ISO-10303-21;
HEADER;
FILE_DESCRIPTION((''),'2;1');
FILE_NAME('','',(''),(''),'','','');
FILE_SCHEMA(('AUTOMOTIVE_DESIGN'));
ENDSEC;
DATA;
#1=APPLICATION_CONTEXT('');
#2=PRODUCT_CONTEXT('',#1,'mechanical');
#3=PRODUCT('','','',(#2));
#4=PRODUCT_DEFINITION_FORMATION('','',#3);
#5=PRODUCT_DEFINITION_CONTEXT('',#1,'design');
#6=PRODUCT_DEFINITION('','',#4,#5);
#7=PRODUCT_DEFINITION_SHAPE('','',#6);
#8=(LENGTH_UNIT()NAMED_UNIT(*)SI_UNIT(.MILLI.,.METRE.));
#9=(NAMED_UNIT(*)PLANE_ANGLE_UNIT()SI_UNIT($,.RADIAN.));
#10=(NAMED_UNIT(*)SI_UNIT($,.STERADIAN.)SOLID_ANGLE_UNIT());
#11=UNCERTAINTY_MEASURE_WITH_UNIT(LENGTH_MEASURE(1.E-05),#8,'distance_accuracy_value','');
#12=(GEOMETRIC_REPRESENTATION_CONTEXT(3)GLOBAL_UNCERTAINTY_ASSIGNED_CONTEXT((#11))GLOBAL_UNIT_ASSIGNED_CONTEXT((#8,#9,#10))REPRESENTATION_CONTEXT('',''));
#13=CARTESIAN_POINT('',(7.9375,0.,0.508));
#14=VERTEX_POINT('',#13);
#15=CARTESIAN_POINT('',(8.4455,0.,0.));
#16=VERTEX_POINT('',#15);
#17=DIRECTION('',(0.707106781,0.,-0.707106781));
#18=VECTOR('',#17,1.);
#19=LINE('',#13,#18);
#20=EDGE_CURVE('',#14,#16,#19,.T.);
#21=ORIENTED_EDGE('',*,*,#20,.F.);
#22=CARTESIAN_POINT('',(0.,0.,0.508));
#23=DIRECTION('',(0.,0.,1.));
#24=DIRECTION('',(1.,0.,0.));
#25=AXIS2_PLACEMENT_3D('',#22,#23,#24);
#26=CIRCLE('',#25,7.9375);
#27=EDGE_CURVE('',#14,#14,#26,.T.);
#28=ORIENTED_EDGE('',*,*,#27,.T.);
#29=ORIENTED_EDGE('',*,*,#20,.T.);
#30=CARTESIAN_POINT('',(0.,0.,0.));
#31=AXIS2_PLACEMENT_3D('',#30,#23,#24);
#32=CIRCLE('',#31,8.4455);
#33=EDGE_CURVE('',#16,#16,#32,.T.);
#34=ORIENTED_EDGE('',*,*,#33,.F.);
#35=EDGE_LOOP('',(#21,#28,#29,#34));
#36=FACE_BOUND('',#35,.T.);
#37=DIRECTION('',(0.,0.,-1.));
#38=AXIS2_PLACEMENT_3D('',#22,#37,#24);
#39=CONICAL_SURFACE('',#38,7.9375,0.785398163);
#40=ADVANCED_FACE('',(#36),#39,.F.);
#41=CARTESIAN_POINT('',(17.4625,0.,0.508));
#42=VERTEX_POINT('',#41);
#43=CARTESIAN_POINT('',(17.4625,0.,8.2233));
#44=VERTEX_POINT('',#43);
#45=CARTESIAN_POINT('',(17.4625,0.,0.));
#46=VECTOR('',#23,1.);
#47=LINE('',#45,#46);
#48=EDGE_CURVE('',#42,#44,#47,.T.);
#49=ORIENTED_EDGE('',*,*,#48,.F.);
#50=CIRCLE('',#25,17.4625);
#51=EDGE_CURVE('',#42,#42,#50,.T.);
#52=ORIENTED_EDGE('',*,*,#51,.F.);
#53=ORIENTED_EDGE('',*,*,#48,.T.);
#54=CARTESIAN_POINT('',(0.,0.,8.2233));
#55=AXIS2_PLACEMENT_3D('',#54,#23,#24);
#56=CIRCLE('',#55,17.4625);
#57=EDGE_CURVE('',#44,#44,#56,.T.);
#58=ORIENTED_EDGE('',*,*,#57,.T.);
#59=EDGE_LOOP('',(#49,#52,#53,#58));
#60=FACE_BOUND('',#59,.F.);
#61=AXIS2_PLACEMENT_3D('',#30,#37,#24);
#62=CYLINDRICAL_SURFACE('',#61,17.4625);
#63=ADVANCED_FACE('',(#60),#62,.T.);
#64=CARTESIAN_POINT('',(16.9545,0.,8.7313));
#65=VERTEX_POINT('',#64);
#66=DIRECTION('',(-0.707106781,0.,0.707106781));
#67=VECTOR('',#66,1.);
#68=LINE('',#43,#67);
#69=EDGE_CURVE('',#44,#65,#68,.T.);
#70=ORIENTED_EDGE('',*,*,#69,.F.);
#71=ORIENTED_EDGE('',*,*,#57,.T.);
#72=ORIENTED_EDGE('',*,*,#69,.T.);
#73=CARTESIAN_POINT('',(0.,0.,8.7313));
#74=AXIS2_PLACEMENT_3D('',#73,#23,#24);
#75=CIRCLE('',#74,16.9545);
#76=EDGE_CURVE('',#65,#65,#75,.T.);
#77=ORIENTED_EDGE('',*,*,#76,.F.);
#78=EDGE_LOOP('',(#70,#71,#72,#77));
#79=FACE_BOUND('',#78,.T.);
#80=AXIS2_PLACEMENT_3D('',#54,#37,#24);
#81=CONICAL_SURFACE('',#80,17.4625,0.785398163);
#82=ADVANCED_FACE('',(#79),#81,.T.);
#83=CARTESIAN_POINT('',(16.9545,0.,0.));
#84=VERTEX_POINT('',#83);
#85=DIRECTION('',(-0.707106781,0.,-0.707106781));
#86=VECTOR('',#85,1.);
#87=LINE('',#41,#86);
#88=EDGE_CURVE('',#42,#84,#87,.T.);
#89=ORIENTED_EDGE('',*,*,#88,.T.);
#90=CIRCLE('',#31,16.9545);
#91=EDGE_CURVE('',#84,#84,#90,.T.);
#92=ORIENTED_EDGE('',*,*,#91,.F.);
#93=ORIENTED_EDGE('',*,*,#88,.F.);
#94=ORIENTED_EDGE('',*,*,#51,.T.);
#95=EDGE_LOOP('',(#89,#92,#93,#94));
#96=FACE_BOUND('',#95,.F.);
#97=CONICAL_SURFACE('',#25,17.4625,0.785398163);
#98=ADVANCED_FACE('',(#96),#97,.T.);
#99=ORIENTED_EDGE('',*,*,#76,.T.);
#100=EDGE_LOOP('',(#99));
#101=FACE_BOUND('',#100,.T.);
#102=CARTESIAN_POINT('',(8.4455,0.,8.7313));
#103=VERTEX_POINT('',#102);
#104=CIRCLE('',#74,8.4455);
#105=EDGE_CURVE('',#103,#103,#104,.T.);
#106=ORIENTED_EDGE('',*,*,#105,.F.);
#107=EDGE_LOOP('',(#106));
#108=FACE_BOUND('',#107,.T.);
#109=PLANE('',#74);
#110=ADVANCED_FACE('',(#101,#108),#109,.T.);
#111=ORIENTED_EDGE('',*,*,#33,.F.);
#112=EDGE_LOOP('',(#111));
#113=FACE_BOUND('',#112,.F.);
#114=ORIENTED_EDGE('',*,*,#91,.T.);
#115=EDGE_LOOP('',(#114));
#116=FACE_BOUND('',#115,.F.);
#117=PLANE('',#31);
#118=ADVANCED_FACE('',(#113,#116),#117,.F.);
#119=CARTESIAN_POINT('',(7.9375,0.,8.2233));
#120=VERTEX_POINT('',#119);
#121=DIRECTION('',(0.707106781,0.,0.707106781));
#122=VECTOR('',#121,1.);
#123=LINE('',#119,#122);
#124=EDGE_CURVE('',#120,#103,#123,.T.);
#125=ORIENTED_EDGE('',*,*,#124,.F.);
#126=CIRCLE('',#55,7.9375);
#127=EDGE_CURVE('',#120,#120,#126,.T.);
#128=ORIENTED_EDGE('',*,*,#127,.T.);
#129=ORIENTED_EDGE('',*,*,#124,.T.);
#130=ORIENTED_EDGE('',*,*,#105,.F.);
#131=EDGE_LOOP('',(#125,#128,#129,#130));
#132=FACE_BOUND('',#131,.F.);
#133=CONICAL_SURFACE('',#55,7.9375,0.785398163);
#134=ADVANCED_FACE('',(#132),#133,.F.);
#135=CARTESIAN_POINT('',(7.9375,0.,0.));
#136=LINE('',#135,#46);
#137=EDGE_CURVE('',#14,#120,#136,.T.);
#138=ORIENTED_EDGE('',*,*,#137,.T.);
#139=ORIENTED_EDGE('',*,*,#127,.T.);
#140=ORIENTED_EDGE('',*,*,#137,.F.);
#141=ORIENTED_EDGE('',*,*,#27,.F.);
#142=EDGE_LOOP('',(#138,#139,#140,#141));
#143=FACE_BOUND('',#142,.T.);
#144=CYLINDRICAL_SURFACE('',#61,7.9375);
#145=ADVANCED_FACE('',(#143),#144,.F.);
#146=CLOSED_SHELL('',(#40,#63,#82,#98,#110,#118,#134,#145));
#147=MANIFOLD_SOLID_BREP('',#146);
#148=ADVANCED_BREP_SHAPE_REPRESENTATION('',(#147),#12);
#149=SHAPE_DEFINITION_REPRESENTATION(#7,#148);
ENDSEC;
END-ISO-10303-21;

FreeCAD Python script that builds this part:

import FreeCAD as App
import Part
import Sketcher
from FreeCAD import Vector
Q = App.Units.Quantity


def edges_at(feature, points):
    """Names of the edges that pass closest to the given points."""
    edges = feature.Shape.Edges
    near = lambda p: min(range(len(edges)), key=lambda i: edges[i].distToShape(Part.Vertex(*p))[0])
    return sorted({f"Edge{near(p) + 1}" for p in points})

doc = App.newDocument("Part")
body = doc.addObject("PartDesign::Body", "Body")

# Sketch on XY plane
sketch1 = body.newObject("Sketcher::SketchObject", "Sketch")
sketch1.AttachmentSupport = (doc.getObject("XY_Plane"), [""])
sketch1.MapMode = "FlatFace"
sketch1.addGeometry(Part.Circle(Vector(0, 0, 0), Vector(0, 0, 1), 17), False)
sketch1.addGeometry(Part.Circle(Vector(0, 0, 0), Vector(0, 0, 1), 8), False)
sketch1.addConstraint(Sketcher.Constraint("Coincident", 0, 3, -1, 1))
sketch1.addConstraint(Sketcher.Constraint("Coincident", 1, 3, -1, 1))
sketch1.addConstraint(Sketcher.Constraint("Diameter", 0, Q("1.375 in")))
sketch1.addConstraint(Sketcher.Constraint("Diameter", 1, Q("0.625 in")))
pad1 = body.newObject("PartDesign::Pad", "Pad")
pad1.Profile = sketch1
pad1.Length = Q("0.343752 in")
doc.recompute()

chamfer = body.newObject("PartDesign::Chamfer", "Chamfer")
chamfer.Base = (pad1, edges_at(pad1, [
    (-17.462, 0, 8.731),
    (-7.938, 0, 8.731),
    (-7.938, 0, 0),
    (-17.462, 0, 0),
]))
chamfer.Size = Q("0.02 in")

doc.recompute()
